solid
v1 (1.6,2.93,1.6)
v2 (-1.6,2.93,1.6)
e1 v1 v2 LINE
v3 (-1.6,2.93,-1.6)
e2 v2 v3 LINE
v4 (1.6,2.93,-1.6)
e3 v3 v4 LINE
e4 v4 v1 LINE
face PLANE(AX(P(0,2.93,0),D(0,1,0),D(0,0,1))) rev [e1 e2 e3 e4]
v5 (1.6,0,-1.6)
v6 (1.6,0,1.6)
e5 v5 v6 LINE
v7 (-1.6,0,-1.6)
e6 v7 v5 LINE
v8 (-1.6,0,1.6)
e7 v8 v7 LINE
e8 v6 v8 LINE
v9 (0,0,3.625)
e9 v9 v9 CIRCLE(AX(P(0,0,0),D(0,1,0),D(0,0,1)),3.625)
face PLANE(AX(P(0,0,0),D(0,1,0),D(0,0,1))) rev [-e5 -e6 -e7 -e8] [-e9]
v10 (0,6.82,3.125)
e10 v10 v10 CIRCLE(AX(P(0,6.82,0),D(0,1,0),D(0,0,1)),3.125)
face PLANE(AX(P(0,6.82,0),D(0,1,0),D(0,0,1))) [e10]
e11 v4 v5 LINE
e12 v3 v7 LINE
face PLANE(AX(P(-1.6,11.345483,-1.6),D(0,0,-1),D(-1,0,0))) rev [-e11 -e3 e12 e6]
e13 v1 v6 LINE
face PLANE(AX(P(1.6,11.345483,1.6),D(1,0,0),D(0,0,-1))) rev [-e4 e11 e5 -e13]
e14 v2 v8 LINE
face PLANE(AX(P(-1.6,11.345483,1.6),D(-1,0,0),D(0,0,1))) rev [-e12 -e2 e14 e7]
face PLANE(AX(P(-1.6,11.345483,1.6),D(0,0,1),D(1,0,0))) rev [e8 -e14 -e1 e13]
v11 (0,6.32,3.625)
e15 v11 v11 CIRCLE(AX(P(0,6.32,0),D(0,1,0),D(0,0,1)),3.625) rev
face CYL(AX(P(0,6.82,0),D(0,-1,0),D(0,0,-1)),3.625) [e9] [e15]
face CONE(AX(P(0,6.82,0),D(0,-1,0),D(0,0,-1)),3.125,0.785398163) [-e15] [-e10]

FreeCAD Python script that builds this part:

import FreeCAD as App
import Part
import Sketcher

V = App.Vector


def edges_at(feature, points):
    """Names of the edges that pass closest to the given points."""
    edges = feature.Shape.Edges
    near = lambda p: min(range(len(edges)), key=lambda i: edges[i].distToShape(Part.Vertex(*p))[0])
    return sorted({f"Edge{near(p) + 1}" for p in points})


def add_polygon(sketch, points):
    """Adds a closed chain of lines whose ends are joined by coincident constraints."""
    first, n = sketch.GeometryCount, len(points)
    for a, b in zip(points, points[1:] + points[:1]):
        sketch.addGeometry(Part.LineSegment(App.Vector(*a, 0), App.Vector(*b, 0)), False)
    for i in range(n):
        sketch.addConstraint(Sketcher.Constraint("Coincident", first + i, 2, first + (i + 1) % n, 1))

doc = App.newDocument("Part")
body = doc.addObject("PartDesign::Body", "Body")

# Sketch on XZ plane
sketch1 = body.newObject("Sketcher::SketchObject", "Sketch")
sketch1.AttachmentSupport = (doc.getObject("XZ_Plane"), [""])
sketch1.MapMode = "FlatFace"
sketch1.addGeometry(Part.Circle(V(0, 0, 0), V(0, 0, 1), 3.6), False)
sketch1.addConstraint([
    Sketcher.Constraint("Coincident", 0, 3, -1, 1),
    Sketcher.Constraint("Diameter", 0, 7.25),
])
pad1 = body.newObject("PartDesign::Pad", "Pad")
pad1.Profile = sketch1
pad1.Length = 6.82
pad1.Reversed = True
doc.recompute()

chamfer = body.newObject("PartDesign::Chamfer", "Chamfer")
chamfer.Base = (pad1, edges_at(pad1, [(-3.625, 6.82, 0)]))
chamfer.Size = 0.5

# Sketch on XZ plane
sketch2 = body.newObject("Sketcher::SketchObject", "Sketch001")
sketch2.AttachmentSupport = (doc.getObject("XZ_Plane"), [""])
sketch2.MapMode = "FlatFace"
add_polygon(sketch2, [(-1.6, 1.6), (-1.6, -1.6), (1.6, -1.6), (1.6, 1.6)])  # lines 0-3
sketch2.addConstraint([
    Sketcher.Constraint("Vertical", 0),
    Sketcher.Constraint("Horizontal", 1),
    Sketcher.Constraint("Vertical", 2),
    Sketcher.Constraint("Horizontal", 3),
    Sketcher.Constraint("Symmetric", 0, 2, 2, 2, -1, 1),
    Sketcher.Constraint("Equal", 3, 0),
    Sketcher.Constraint("DistanceX", 1, 1, 1, 2, 3.2),
])
pocket1 = body.newObject("PartDesign::Pocket", "Pocket")
pocket1.Profile = sketch2
pocket1.Length = 2.93

doc.recompute()
